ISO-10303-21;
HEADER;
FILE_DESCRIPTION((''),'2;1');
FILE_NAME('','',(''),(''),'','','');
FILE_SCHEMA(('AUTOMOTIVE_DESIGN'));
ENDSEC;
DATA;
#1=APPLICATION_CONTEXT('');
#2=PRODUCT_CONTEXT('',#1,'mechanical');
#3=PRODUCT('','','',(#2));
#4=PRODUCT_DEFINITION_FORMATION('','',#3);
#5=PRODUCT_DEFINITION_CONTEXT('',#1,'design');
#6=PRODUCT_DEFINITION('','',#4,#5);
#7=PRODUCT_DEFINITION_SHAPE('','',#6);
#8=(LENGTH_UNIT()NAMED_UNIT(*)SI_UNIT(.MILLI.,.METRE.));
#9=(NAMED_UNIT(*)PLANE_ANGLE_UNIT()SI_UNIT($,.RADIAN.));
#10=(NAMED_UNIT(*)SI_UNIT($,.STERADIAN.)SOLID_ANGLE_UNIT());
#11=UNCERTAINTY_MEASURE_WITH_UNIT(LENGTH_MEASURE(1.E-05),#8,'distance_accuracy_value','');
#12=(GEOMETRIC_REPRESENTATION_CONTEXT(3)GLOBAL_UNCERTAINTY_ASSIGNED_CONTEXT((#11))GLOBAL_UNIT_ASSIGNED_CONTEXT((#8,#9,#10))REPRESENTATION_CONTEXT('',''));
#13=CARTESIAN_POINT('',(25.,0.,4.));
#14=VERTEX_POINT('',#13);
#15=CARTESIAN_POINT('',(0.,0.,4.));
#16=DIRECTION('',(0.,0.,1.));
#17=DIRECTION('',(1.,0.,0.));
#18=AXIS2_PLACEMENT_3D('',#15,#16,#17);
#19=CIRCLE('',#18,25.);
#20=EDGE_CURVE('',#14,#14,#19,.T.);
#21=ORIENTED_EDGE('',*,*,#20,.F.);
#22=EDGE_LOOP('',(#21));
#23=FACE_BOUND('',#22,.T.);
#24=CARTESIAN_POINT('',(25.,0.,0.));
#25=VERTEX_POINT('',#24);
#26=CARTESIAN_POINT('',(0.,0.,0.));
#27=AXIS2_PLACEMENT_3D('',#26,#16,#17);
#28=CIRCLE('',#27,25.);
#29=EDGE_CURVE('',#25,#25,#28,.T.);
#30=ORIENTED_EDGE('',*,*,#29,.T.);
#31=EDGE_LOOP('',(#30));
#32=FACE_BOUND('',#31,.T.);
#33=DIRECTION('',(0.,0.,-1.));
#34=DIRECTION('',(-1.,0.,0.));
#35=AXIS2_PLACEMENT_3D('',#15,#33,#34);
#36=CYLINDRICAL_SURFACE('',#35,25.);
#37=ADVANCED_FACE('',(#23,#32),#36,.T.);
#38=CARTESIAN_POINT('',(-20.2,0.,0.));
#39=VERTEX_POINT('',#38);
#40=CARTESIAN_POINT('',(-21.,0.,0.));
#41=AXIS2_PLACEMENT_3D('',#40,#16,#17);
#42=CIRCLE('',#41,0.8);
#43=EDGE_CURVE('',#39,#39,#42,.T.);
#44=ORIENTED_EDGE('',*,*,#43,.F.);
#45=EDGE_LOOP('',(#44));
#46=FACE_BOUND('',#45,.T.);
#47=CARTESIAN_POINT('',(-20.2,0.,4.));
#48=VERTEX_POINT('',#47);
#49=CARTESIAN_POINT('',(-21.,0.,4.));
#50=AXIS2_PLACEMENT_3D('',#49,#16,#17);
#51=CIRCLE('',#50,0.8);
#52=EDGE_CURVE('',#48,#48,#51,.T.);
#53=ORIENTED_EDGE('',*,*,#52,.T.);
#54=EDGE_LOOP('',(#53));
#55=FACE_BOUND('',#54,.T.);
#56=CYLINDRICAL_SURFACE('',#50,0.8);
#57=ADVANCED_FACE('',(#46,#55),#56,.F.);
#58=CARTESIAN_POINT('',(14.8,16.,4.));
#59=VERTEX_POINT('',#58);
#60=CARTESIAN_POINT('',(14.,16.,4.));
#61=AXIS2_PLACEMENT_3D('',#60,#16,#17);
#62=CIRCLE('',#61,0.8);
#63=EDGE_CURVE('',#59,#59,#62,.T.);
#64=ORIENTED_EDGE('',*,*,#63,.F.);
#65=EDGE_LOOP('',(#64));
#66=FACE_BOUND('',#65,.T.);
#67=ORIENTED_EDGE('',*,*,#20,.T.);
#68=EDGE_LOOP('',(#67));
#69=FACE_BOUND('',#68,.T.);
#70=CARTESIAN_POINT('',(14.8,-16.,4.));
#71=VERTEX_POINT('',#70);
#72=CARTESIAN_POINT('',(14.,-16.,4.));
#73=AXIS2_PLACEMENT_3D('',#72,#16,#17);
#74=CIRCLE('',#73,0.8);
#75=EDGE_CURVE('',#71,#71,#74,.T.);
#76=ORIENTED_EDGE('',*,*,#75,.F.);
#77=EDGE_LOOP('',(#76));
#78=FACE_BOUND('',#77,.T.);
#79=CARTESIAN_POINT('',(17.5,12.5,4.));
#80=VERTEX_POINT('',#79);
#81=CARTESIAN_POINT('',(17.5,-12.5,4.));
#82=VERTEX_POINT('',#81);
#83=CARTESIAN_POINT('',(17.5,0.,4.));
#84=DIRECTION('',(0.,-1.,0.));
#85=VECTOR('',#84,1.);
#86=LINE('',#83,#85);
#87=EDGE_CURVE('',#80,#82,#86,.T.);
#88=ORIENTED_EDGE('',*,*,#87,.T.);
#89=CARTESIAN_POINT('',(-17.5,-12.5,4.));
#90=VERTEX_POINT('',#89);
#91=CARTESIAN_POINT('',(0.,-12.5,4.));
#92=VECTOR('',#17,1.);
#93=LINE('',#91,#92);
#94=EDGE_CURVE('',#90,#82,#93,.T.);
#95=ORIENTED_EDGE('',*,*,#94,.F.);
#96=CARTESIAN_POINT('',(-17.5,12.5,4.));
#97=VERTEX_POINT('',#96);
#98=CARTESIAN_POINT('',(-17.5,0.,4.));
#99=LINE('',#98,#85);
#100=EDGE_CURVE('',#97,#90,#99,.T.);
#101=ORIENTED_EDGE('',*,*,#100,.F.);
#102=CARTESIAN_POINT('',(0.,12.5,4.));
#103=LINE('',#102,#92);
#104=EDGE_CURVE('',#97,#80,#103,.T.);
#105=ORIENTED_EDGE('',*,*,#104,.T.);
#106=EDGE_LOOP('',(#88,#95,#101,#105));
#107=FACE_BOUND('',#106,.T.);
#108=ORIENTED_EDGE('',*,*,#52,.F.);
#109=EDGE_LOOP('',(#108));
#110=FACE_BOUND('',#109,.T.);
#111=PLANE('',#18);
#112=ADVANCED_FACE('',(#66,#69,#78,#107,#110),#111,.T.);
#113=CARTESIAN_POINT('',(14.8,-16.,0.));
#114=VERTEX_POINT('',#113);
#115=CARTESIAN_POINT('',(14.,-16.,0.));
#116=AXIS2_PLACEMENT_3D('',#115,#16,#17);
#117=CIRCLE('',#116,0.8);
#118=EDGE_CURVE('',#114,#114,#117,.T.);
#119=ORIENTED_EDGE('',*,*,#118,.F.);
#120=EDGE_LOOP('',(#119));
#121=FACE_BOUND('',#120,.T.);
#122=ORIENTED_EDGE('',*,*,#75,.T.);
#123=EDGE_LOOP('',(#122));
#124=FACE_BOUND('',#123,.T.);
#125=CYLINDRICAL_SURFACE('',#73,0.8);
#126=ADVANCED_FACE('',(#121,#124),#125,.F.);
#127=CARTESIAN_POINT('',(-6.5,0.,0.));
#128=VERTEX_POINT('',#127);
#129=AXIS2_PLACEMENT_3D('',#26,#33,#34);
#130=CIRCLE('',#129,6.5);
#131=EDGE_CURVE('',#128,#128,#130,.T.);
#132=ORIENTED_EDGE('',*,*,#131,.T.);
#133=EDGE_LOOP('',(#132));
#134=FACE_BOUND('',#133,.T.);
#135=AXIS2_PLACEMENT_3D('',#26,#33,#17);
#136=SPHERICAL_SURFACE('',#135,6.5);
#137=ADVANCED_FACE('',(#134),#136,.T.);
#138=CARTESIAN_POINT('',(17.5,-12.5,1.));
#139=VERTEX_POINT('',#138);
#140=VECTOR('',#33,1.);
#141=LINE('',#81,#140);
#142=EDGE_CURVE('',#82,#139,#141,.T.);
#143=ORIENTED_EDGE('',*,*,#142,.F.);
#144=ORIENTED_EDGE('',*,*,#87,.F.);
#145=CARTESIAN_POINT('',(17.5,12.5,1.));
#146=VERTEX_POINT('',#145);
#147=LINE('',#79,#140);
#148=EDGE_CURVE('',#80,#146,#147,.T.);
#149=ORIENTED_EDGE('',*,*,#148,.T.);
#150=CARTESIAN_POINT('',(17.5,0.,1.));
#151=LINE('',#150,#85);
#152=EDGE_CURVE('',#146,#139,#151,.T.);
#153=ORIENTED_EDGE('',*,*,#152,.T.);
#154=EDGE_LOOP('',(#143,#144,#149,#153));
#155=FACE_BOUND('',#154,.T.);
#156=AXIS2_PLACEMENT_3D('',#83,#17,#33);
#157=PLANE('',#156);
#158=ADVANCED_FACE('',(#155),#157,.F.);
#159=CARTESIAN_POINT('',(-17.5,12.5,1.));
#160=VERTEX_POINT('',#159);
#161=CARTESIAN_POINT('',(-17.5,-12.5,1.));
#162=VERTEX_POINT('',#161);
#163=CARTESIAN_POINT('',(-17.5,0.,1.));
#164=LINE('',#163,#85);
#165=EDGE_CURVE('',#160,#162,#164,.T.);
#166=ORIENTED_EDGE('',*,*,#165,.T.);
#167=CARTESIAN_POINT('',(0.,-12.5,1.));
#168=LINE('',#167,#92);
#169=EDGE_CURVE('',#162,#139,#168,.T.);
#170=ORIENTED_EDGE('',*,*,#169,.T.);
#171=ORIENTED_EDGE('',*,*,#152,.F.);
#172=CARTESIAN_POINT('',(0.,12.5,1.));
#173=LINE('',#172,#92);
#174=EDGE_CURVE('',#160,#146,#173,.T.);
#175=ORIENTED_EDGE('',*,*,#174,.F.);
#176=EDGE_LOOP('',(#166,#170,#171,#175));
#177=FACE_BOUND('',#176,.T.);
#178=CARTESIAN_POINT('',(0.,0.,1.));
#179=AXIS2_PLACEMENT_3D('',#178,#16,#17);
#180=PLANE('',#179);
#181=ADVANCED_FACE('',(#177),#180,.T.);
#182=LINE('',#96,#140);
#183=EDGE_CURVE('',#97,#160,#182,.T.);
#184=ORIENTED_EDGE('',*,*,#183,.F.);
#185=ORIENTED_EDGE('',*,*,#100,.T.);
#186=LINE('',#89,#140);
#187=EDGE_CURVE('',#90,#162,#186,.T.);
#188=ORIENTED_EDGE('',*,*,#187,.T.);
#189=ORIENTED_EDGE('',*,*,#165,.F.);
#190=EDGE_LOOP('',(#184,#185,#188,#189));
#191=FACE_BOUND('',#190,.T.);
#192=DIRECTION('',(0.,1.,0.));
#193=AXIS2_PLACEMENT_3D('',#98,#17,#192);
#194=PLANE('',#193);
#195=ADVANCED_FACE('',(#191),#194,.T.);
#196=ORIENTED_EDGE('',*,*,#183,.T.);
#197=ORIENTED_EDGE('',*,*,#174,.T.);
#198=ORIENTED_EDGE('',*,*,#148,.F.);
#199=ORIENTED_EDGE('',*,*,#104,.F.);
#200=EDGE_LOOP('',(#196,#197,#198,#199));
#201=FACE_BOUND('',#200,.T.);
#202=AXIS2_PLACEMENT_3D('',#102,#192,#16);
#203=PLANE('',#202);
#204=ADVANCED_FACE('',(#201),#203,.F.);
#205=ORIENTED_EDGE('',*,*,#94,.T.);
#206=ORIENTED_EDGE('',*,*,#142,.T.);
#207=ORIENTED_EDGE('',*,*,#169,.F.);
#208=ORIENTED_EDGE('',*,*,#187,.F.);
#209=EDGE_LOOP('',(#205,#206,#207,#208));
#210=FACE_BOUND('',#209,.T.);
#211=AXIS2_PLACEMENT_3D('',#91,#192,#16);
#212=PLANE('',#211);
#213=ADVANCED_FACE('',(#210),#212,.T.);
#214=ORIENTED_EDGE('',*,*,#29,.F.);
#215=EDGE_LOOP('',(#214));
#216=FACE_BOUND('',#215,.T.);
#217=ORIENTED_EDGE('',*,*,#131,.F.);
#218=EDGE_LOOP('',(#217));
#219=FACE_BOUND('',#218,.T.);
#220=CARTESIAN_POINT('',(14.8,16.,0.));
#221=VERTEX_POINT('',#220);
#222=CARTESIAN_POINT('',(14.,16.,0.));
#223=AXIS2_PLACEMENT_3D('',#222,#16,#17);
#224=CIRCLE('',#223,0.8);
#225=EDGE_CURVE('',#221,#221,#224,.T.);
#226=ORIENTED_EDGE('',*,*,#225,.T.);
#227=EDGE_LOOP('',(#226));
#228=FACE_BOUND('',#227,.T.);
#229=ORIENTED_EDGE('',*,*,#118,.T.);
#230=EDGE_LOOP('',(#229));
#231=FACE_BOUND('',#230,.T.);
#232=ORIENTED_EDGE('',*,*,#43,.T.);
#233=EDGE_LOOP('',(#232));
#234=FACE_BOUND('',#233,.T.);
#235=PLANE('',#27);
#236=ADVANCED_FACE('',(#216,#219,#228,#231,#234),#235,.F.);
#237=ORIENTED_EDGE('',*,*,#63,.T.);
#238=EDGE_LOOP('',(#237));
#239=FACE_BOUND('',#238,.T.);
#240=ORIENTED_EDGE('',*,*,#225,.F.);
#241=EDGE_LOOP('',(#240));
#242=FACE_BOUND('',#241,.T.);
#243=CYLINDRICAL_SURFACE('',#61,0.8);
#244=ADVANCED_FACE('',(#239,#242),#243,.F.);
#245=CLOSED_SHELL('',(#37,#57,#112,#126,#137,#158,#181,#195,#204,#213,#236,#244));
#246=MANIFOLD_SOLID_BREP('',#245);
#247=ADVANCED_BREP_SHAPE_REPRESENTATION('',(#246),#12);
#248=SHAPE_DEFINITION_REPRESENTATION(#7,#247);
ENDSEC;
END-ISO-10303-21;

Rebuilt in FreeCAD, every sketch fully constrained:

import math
import FreeCAD as App
import Part
import Sketcher

V = App.Vector
Q = App.Units.Quantity


def add_polygon(sketch, points):
    """Adds a closed chain of lines whose ends are joined by coincident constraints."""
    first, n = sketch.GeometryCount, len(points)
    for a, b in zip(points, points[1:] + points[:1]):
        sketch.addGeometry(Part.LineSegment(App.Vector(*a, 0), App.Vector(*b, 0)), False)
    for i in range(n):
        sketch.addConstraint(Sketcher.Constraint("Coincident", first + i, 2, first + (i + 1) % n, 1))

doc = App.newDocument("Part")
body = doc.addObject("PartDesign::Body", "Body")

# Sketch on XY plane
sketch1 = doc.addObject("Sketcher::SketchObject", "Sketch")
body.addObject(sketch1)
sketch1.AttachmentSupport = (doc.XY_Plane, [""])
sketch1.MapMode = "FlatFace"
sketch1.addGeometry(Part.Circle(V(0, 0, 0), V(0, 0, 1), 25), False)  # 0
add_polygon(sketch1, [(18, -12), (-18, -12), (-18, 12), (18, 12)])  # lines 1-4
sketch1.addConstraint([
    Sketcher.Constraint("Horizontal", 1),
    Sketcher.Constraint("Vertical", 2),
    Sketcher.Constraint("Horizontal", 3),
    Sketcher.Constraint("Vertical", 4),
    Sketcher.Constraint("Coincident", 0, 3, -1, 1),
    Sketcher.Constraint("Symmetric", 1, 2, 3, 2, -1, 1),
    Sketcher.Constraint("Diameter", 0, Q("50 mm")),
    Sketcher.Constraint("DistanceX", 1, 2, 1, 1, Q("35 mm")),
    Sketcher.Constraint("DistanceY", 2, 1, 2, 2, Q("25 mm")),
])
pad1 = doc.addObject("PartDesign::Pad", "Pad")
body.addObject(pad1)
pad1.Profile = sketch1
pad1.Length = 4

# Sketch on XY plane
sketch2 = doc.addObject("Sketcher::SketchObject", "Sketch001")
body.addObject(sketch2)
sketch2.AttachmentSupport = (doc.XY_Plane, [""])
sketch2.MapMode = "FlatFace"
add_polygon(sketch2, [(-18, 12), (-18, -12), (18, -12), (18, 12)])  # lines 0-3
sketch2.addConstraint([
    Sketcher.Constraint("Vertical", 0),
    Sketcher.Constraint("Horizontal", 1),
    Sketcher.Constraint("Vertical", 2),
    Sketcher.Constraint("Horizontal", 3),
    Sketcher.Constraint("Symmetric", 0, 2, 2, 2, -1, 1),
    Sketcher.Constraint("DistanceX", 1, 1, 1, 2, Q("35 mm")),
    Sketcher.Constraint("DistanceY", 0, 2, 0, 1, Q("25 mm")),
])
pad2 = doc.addObject("PartDesign::Pad", "Pad001")
body.addObject(pad2)
pad2.Profile = sketch2
pad2.Length = 1

# Sketch on XZ plane
sketch3 = doc.addObject("Sketcher::SketchObject", "Sketch002")
body.addObject(sketch3)
sketch3.AttachmentSupport = (doc.XZ_Plane, [""])
sketch3.MapMode = "FlatFace"
sketch3.addGeometry([
    Part.LineSegment(V(0, 0, 0), V(0, -6, 0)),
    Part.ArcOfCircle(Part.Circle(V(0, 0, 0), V(0, 0, 1), 6), math.radians(180), math.radians(270)),
    Part.LineSegment(V(-6, 0, 0), V(0, 0, 0)),
], False)
sketch3.addConstraint([
    Sketcher.Constraint("Coincident", 0, 2, 1, 2),
    Sketcher.Constraint("Coincident", 1, 1, 2, 1),
    Sketcher.Constraint("Coincident", 2, 2, 0, 1),
    Sketcher.Constraint("Vertical", 0),
    Sketcher.Constraint("Horizontal", 2),
    Sketcher.Constraint("Coincident", 1, 3, -1, 1),
    Sketcher.Constraint("Coincident", 2, 2, -1, 1),
    Sketcher.Constraint("Radius", 1, Q("6.5 mm")),
])
revolution = doc.addObject("PartDesign::Revolution", "Revolution")
body.addObject(revolution)
revolution.Profile = sketch3
revolution.ReferenceAxis = (sketch3, ["V_Axis"])
revolution.Angle = 360

# Sketch on XY plane
sketch4 = doc.addObject("Sketcher::SketchObject", "Sketch003")
body.addObject(sketch4)
sketch4.AttachmentSupport = (doc.XY_Plane, [""])
sketch4.MapMode = "FlatFace"
sketch4.AttachmentOffset = App.Placement(V(0, 0, 4), App.Rotation())
sketch4.addGeometry([
    Part.Circle(V(-21, 0, 0), V(0, 0, 1), 0.8),
    Part.Circle(V(14, -16, 0), V(0, 0, 1), 0.8),
    Part.Circle(V(14, 16, 0), V(0, 0, 1), 0.8),
], False)
sketch4.addConstraint([
    Sketcher.Constraint("Equal", 0, 1),
    Sketcher.Constraint("Equal", 1, 2),
    Sketcher.Constraint("Symmetric", 1, 3, 2, 3, -1),
    Sketcher.Constraint("PointOnObject", 0, 3, -1),
    Sketcher.Constraint("Diameter", 0, Q("1.6 mm")),
    Sketcher.Constraint("DistanceX", 0, 3, -1, 1, Q("21 mm")),
    Sketcher.Constraint("DistanceX", -1, 1, 1, 3, Q("14 mm")),
    Sketcher.Constraint("DistanceY", 1, 3, -1, 1, Q("16 mm")),
])
doc.recompute()
hole = doc.addObject("PartDesign::Hole", "Hole")
body.addObject(hole)
hole.Profile = sketch4
hole.ThreadType = "None"
hole.Diameter = 1.6
hole.DepthType = "ThroughAll"

doc.recompute()
